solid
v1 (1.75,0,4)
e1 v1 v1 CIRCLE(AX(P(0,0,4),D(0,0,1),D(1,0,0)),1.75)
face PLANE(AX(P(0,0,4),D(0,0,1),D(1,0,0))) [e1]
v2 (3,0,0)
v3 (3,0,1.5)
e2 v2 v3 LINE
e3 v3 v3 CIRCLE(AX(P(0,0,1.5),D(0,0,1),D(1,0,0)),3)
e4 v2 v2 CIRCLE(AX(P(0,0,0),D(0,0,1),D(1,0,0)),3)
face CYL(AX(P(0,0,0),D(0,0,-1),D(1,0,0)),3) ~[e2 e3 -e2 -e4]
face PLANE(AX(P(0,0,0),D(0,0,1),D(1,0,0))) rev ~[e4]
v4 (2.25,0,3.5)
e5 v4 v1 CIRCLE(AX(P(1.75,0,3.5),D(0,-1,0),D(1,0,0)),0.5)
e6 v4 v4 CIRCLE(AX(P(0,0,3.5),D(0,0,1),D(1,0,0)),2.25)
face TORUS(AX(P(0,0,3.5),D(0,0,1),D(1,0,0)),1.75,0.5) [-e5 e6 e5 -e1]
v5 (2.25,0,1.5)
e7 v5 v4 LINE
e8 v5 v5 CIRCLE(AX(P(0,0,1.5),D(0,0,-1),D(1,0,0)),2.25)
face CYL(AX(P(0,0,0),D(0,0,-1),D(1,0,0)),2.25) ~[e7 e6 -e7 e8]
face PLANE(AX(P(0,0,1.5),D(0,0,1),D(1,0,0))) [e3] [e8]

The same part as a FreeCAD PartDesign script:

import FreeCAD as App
import Part
import Sketcher

V = App.Vector


def edges_at(feature, points):
    """Names of the edges that pass closest to the given points."""
    edges = feature.Shape.Edges
    near = lambda p: min(range(len(edges)), key=lambda i: edges[i].distToShape(Part.Vertex(*p))[0])
    return sorted({f"Edge{near(p) + 1}" for p in points})

doc = App.newDocument("Part")
body = doc.addObject("PartDesign::Body", "Body")

# Sketch on XY plane
sketch1 = body.newObject("Sketcher::SketchObject", "Sketch")
sketch1.AttachmentSupport = (doc.getObject("XY_Plane"), [""])
sketch1.MapMode = "FlatFace"
sketch1.addGeometry(Part.Circle(V(0, 0, 0), V(0, 0, 1), 3), False)
sketch1.addConstraint([
    Sketcher.Constraint("Coincident", 0, 3, -1, 1),
    Sketcher.Constraint("Diameter", 0, 6.0),
])
pad1 = body.newObject("PartDesign::Pad", "Pad")
pad1.Profile = sketch1
pad1.Length = 1.5

# Sketch on XY plane
sketch2 = body.newObject("Sketcher::SketchObject", "Sketch001")
sketch2.AttachmentSupport = (doc.getObject("XY_Plane"), [""])
sketch2.MapMode = "FlatFace"
sketch2.addGeometry(Part.Circle(V(0, 0, 0), V(0, 0, 1), 2.2), False)
sketch2.addConstraint([
    Sketcher.Constraint("Coincident", 0, 3, -1, 1),
    Sketcher.Constraint("Diameter", 0, 4.5),
])
pad2 = body.newObject("PartDesign::Pad", "Pad001")
pad2.Profile = sketch2
pad2.Length = 4
doc.recompute()

fillet = body.newObject("PartDesign::Fillet", "Fillet")
fillet.Base = (pad2, edges_at(pad2, [(-2.25, 0, 4)]))
fillet.Radius = 0.5

doc.recompute()
